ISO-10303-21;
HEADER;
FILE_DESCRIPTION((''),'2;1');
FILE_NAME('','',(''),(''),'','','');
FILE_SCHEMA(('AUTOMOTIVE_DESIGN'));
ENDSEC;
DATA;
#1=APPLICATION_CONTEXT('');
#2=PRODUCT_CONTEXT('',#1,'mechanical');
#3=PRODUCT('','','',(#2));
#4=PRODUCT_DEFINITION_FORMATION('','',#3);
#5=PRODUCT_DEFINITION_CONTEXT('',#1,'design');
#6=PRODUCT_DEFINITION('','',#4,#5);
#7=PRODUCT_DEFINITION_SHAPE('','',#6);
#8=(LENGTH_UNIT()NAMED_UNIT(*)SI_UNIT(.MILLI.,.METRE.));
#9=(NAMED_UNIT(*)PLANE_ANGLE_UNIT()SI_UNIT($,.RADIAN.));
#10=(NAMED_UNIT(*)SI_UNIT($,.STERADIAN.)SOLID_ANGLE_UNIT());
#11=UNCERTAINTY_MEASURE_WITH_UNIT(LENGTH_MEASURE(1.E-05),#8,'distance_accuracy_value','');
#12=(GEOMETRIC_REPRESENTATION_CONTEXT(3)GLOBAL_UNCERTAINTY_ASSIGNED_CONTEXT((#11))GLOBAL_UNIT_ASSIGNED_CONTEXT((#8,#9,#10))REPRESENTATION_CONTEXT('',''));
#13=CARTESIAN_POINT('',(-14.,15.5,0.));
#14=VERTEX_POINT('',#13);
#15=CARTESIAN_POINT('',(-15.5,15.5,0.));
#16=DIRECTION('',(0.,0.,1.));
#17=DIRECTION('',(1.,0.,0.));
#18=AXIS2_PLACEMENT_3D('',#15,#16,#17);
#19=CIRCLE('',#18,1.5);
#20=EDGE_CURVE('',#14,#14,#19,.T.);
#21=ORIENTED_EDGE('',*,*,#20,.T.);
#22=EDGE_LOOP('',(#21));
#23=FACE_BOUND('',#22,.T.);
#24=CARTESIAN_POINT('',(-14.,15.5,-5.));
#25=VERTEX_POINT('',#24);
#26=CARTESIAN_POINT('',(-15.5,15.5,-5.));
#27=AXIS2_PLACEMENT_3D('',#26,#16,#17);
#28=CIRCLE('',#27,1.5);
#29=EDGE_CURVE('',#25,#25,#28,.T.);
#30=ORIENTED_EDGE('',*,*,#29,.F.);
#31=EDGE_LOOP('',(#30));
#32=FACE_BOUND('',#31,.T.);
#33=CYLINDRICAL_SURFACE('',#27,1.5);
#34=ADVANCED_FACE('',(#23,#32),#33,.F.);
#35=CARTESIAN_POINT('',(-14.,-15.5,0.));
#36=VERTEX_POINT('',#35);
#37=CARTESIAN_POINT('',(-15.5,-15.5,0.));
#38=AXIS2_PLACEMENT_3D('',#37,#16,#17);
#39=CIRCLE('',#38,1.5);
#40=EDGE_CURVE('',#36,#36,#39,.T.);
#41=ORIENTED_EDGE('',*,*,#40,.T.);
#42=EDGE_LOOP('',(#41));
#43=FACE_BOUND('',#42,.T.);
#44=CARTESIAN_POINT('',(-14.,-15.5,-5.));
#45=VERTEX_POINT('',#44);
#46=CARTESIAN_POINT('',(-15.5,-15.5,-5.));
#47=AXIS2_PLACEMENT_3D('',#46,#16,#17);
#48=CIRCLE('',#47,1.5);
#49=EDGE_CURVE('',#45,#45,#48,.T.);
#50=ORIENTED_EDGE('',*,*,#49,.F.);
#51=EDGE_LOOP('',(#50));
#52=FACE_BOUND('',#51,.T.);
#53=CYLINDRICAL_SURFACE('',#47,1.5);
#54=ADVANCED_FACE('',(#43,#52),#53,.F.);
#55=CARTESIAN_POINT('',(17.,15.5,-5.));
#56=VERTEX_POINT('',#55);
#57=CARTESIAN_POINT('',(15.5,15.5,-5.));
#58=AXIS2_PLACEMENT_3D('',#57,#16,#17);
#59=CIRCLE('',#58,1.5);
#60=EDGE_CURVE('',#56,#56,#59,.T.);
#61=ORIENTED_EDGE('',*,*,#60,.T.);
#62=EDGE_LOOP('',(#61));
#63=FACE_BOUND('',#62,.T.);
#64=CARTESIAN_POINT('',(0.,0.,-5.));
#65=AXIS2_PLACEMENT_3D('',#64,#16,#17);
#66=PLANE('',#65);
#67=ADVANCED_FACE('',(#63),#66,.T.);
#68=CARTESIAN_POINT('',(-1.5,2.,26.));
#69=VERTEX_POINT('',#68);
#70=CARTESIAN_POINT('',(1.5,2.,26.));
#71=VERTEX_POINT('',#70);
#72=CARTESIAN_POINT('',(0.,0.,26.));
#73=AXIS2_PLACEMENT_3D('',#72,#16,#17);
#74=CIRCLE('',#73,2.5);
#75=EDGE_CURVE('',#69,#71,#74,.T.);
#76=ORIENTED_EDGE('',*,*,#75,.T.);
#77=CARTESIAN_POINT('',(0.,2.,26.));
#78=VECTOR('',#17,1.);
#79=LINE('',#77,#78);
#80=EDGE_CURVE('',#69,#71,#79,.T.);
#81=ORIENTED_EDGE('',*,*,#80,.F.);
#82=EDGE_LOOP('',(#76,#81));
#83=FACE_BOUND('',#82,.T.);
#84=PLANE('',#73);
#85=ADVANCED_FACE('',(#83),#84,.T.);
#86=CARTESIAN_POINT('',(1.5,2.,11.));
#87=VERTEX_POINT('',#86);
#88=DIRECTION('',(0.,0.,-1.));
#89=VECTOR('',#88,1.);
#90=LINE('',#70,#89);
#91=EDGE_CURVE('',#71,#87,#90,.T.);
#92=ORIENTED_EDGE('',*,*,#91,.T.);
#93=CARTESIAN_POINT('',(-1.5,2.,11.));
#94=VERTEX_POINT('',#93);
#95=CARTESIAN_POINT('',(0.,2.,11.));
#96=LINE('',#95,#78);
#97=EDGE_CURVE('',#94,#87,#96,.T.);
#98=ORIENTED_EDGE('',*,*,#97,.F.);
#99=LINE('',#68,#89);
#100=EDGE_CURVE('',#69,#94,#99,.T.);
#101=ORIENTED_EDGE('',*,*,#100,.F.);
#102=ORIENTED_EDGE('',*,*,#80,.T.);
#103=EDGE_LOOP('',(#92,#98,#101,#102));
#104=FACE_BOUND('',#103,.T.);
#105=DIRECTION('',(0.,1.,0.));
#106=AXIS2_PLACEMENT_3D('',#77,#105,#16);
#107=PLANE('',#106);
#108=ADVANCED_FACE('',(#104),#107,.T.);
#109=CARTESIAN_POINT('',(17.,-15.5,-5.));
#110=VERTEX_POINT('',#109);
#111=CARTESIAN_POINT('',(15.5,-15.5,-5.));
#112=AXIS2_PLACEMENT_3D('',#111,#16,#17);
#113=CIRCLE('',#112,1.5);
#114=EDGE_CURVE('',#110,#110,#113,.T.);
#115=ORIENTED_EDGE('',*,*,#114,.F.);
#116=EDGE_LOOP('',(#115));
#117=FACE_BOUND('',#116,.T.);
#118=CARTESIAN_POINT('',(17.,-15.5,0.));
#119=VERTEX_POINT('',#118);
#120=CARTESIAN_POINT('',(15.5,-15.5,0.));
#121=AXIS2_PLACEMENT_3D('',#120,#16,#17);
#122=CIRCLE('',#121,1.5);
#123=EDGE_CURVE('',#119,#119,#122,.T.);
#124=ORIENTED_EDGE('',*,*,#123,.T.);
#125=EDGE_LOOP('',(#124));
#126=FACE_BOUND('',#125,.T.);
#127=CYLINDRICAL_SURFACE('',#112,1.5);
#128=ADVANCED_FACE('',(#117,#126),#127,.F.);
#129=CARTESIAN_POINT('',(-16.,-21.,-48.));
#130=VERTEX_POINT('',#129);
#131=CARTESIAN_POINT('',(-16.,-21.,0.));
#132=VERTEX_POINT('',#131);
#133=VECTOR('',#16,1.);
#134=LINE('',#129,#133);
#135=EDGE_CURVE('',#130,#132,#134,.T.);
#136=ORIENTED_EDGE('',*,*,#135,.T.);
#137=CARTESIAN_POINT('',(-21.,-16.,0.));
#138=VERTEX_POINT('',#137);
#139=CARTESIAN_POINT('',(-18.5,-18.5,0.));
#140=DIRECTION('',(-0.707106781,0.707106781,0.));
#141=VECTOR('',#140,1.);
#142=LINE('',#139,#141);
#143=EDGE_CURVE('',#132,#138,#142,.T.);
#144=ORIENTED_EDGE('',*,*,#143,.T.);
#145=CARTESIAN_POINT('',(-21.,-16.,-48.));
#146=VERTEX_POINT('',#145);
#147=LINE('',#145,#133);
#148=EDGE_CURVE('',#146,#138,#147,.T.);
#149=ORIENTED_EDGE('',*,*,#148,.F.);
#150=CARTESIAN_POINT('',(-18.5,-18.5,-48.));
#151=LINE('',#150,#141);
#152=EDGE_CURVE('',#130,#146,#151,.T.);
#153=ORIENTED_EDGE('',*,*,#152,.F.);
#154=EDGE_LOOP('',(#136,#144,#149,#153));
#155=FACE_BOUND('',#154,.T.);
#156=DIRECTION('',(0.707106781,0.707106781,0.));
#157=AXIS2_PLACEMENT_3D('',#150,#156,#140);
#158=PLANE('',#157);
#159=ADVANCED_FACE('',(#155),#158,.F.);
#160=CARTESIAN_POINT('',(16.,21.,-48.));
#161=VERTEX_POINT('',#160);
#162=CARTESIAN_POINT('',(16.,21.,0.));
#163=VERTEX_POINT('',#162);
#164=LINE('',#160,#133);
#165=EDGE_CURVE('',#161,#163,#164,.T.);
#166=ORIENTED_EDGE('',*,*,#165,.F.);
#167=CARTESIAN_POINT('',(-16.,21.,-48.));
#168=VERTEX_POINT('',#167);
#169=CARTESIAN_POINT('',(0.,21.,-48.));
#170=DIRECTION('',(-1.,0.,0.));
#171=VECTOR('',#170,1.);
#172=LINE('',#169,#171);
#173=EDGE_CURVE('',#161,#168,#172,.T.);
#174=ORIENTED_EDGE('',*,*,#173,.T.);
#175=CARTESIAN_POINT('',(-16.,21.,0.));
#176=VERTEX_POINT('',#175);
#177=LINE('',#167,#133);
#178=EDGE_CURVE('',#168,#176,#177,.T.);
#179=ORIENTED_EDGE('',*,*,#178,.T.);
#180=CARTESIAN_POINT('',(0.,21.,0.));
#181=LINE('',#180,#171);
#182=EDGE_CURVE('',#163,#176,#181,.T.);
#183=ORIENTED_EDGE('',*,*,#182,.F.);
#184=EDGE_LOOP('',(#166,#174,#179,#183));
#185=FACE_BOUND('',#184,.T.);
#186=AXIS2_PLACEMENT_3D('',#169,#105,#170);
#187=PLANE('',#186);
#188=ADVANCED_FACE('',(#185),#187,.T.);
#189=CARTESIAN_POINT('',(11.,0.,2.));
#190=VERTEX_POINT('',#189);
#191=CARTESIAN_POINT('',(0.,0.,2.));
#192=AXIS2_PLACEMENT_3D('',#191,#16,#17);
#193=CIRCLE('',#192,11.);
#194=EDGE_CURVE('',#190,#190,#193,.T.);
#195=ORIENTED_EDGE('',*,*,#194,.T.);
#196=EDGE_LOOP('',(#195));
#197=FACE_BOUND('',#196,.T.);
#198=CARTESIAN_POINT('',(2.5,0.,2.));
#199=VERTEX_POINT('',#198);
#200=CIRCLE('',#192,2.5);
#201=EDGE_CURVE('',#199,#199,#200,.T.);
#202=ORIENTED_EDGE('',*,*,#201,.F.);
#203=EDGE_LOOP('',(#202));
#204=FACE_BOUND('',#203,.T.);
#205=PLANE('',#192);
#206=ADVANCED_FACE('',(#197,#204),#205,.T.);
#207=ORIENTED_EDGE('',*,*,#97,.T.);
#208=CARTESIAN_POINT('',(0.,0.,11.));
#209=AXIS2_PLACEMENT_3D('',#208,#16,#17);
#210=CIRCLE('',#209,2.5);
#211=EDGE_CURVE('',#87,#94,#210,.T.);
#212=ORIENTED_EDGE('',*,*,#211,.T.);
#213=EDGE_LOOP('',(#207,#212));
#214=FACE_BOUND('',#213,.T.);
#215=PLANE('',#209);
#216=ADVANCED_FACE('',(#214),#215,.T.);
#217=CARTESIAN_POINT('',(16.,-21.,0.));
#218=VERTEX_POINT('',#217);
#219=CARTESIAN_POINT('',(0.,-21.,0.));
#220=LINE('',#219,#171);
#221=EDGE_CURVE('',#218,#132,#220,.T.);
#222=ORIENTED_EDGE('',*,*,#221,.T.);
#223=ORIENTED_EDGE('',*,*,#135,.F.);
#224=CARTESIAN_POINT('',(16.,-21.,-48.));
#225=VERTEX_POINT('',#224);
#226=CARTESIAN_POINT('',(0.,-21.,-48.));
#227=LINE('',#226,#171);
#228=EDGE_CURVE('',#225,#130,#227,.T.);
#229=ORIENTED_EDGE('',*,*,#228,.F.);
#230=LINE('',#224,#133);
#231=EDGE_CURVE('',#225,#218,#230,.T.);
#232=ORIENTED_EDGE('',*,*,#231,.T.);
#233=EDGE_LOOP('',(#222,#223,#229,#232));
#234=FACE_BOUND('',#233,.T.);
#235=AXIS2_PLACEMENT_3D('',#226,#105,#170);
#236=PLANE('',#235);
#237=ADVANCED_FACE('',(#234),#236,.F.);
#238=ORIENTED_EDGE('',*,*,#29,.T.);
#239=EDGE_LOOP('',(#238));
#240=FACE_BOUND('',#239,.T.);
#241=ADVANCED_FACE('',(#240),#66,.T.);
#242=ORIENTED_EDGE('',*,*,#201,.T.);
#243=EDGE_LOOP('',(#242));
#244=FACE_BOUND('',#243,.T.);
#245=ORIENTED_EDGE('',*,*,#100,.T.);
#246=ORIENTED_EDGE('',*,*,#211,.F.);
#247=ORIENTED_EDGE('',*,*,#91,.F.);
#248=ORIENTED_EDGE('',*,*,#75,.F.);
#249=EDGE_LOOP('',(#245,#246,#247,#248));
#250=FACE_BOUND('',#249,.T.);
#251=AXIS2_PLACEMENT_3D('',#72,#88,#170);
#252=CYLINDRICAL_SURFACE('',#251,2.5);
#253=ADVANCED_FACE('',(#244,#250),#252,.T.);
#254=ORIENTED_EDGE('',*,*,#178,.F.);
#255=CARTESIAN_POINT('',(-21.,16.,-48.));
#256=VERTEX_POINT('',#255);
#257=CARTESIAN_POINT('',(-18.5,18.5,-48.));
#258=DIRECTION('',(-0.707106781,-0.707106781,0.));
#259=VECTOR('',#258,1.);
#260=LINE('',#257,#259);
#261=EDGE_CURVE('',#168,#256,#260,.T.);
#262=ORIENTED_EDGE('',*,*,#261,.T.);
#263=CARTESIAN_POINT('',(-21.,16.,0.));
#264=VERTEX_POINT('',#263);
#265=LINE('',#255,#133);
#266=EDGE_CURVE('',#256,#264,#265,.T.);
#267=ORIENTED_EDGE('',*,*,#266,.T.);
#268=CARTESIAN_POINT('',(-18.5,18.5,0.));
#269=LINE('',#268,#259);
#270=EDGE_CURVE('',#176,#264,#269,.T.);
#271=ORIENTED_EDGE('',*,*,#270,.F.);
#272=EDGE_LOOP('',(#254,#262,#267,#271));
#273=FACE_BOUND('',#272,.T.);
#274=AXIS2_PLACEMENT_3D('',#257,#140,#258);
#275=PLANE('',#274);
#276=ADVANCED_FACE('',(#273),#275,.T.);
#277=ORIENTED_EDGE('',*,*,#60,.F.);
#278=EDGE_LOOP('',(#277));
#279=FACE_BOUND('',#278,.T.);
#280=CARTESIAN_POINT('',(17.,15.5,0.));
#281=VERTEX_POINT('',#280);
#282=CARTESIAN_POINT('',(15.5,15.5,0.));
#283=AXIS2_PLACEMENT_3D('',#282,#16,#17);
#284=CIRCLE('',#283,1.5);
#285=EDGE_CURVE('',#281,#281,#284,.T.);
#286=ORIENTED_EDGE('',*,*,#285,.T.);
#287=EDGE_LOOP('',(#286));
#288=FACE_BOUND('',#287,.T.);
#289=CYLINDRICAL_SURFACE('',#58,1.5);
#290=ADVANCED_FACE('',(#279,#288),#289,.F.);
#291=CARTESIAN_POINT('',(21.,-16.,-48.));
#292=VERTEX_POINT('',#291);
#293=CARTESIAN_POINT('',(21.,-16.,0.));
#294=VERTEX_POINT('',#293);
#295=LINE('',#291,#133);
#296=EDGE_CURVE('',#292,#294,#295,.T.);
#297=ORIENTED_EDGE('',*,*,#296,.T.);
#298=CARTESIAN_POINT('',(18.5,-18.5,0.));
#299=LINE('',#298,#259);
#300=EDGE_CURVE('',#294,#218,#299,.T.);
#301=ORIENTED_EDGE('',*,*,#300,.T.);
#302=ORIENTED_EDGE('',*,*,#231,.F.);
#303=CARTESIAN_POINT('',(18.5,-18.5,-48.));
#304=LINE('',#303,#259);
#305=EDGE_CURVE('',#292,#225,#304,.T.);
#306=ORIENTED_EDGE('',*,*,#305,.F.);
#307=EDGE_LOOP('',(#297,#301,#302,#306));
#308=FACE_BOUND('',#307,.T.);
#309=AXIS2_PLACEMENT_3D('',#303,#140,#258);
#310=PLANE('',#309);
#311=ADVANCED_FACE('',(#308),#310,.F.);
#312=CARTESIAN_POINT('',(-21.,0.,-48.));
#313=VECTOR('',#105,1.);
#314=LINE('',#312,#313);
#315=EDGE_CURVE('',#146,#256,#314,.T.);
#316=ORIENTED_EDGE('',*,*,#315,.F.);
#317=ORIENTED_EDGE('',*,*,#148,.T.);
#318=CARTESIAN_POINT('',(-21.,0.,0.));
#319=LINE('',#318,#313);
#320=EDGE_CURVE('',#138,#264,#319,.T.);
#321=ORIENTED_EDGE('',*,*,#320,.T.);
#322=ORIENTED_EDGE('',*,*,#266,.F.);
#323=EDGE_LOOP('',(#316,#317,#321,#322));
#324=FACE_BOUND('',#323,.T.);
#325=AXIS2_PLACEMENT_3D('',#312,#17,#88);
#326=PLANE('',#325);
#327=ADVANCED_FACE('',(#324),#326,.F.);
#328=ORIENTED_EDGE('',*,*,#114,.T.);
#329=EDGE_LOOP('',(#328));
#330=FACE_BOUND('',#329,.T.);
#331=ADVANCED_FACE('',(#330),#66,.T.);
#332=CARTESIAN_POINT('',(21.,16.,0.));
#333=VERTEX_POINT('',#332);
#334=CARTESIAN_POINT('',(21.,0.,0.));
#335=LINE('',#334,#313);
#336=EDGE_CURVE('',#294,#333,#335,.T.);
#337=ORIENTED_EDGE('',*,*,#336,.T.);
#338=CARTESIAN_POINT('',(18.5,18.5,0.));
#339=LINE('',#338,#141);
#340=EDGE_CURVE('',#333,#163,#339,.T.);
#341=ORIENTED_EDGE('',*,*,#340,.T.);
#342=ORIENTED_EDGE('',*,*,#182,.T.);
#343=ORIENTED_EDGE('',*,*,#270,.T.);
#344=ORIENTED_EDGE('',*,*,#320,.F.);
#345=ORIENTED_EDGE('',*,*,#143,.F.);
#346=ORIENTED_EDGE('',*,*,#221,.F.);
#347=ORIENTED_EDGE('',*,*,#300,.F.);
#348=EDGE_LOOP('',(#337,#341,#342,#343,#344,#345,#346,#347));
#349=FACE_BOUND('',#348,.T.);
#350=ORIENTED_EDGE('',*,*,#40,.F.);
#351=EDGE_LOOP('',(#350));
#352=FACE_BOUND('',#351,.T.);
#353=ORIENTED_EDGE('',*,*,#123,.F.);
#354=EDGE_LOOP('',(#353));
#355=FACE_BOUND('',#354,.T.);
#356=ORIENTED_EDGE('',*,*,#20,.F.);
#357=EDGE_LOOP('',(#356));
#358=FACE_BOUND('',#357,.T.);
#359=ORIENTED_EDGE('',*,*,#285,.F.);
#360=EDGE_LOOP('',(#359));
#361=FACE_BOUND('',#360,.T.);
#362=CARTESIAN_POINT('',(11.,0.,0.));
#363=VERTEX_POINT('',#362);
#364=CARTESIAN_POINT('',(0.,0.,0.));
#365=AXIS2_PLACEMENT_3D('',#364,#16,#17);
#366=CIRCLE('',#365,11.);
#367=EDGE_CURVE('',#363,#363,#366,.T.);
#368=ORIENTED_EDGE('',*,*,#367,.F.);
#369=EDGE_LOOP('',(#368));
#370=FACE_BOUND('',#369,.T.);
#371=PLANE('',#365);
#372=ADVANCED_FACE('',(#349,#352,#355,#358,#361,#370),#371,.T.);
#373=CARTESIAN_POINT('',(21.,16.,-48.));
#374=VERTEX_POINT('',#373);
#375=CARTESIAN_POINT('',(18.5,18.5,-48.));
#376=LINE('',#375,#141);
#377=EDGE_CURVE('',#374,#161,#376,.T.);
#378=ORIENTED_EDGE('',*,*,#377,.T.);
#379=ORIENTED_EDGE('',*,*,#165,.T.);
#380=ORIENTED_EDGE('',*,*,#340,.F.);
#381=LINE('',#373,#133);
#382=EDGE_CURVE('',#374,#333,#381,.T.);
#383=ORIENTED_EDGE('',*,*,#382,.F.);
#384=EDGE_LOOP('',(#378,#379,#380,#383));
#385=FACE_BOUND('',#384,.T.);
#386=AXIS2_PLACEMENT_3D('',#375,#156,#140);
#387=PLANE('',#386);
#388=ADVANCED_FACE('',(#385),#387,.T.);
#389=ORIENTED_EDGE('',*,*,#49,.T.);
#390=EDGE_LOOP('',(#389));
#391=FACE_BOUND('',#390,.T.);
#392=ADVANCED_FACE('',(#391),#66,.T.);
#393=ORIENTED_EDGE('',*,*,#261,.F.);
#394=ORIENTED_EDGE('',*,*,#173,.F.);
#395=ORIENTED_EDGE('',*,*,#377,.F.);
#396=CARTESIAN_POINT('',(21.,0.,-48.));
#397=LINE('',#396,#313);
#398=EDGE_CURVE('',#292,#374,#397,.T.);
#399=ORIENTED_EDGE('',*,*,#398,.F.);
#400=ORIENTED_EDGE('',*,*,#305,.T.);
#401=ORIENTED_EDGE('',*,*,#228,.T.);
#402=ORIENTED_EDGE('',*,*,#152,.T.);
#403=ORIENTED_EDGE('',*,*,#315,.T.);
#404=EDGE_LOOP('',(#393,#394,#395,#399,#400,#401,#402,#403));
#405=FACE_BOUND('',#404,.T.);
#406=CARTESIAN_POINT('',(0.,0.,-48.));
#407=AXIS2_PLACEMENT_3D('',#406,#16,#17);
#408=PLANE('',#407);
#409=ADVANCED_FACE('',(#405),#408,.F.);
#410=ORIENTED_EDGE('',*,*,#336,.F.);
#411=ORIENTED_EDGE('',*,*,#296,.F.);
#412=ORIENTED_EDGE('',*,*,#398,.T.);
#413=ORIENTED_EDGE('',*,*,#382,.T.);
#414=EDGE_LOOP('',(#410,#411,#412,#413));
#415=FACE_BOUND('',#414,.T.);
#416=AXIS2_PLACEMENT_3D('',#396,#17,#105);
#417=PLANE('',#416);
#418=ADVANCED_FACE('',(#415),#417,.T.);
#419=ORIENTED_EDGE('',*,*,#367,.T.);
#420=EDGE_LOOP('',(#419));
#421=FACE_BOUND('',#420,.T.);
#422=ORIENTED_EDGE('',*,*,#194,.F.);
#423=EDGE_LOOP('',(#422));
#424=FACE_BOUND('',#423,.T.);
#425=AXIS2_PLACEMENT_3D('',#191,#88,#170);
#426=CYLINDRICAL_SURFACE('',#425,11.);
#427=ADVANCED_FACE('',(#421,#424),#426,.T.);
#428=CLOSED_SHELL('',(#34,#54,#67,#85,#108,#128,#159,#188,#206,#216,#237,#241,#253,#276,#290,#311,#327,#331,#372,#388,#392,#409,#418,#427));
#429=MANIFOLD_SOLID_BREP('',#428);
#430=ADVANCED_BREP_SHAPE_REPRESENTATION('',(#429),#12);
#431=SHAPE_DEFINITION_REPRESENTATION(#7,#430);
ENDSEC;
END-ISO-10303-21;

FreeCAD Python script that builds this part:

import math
import FreeCAD as App
import Part
import Sketcher

V = App.Vector
Q = App.Units.Quantity

doc = App.newDocument("Part")
params = doc.addObject("Spreadsheet::Sheet", "Params")
for row, (alias, value) in enumerate([
    ("sketch1_width", "32 mm"),
    ("pad1_length", "48 mm"),
    ("sketch2_diameter", "22 mm"),
    ("sketch2_diameter2", "5 mm"),
    ("pad2_length", "2 mm"),
    ("sketch3_radius", "2.5 mm"),
    ("sketch3_width", "3 mm"),
    ("pad3_length", "26 mm"),
    ("sketch4_radius", "2.5 mm"),
    ("pad4_length", "11 mm"),
    ("sketch5_diameter", "3 mm"),
    ("pocket1_length", "5 mm"),
], start=1):
    params.set(f"A{row}", alias)
    params.set(f"B{row}", "=" + value)
    params.setAlias(f"B{row}", alias)

body = doc.addObject("PartDesign::Body", "Body")

sketch1 = body.newObject("Sketcher::SketchObject", "Sketch")
sketch1.AttachmentSupport = (doc.getObject("XY_Plane"), [""])
sketch1.MapMode = "FlatFace"
sketch1.addGeometry([
    Part.LineSegment(V(-21, -16, 0), V(-16, -21, 0)),
    Part.LineSegment(V(-16, -21, 0), V(16, -21, 0)),
    Part.LineSegment(V(16, -21, 0), V(21, -16, 0)),
    Part.LineSegment(V(21, -16, 0), V(21, 16, 0)),
    Part.LineSegment(V(21, 16, 0), V(16, 21, 0)),
    Part.LineSegment(V(16, 21, 0), V(-16, 21, 0)),
    Part.LineSegment(V(-16, 21, 0), V(-21, 16, 0)),
    Part.LineSegment(V(-21, 16, 0), V(-21, -16, 0)),
], False)
sketch1.addConstraint([
    Sketcher.Constraint("Coincident", 0, 2, 1, 1),
    Sketcher.Constraint("Coincident", 1, 2, 2, 1),
    Sketcher.Constraint("Coincident", 2, 2, 3, 1),
    Sketcher.Constraint("Coincident", 3, 2, 4, 1),
    Sketcher.Constraint("Coincident", 4, 2, 5, 1),
    Sketcher.Constraint("Coincident", 5, 2, 6, 1),
    Sketcher.Constraint("Coincident", 6, 2, 7, 1),
    Sketcher.Constraint("Coincident", 7, 2, 0, 1),
    Sketcher.Constraint("Horizontal", 1),
    Sketcher.Constraint("Vertical", 3),
    Sketcher.Constraint("Horizontal", 5),
    Sketcher.Constraint("Vertical", 7),
    Sketcher.Constraint("Symmetric", 0, 2, 4, 2, -1, 1),
    Sketcher.Constraint("Symmetric", 2, 2, 6, 2, -1, 1),
    Sketcher.Constraint("Perpendicular", 0, 2),
    Sketcher.Constraint("Perpendicular", 2, 4),
    Sketcher.Constraint("Perpendicular", 4, 6),
    Sketcher.Constraint("Horizontal", 3, 2, 6, 2),
    Sketcher.Constraint("Vertical", 1, 2, 4, 2),
    Sketcher.Constraint("Equal", 5, 3),
    Sketcher.Constraint("DistanceX", 1, 1, 1, 2, Q("32 mm")),
    Sketcher.Constraint("DistanceY", 0, 2, -1, 1, Q("21 mm")),
])
sketch1.setExpression("Constraints[20]", "Params.sketch1_width")
pad1 = body.newObject("PartDesign::Pad", "Pad")
pad1.Profile = sketch1
pad1.setExpression("Length", "Params.pad1_length")
pad1.Reversed = True

sketch2 = body.newObject("Sketcher::SketchObject", "Sketch001")
sketch2.AttachmentSupport = (doc.getObject("XY_Plane"), [""])
sketch2.MapMode = "FlatFace"
sketch2.addGeometry([
    Part.Circle(V(0, 0, 0), V(0, 0, 1), 11),
    Part.Circle(V(0, 0, 0), V(0, 0, 1), 2.5),
], False)
sketch2.addConstraint([
    Sketcher.Constraint("Coincident", 0, 3, -1, 1),
    Sketcher.Constraint("Coincident", 1, 3, -1, 1),
    Sketcher.Constraint("Diameter", 0, Q("22 mm")),
    Sketcher.Constraint("Diameter", 1, Q("5 mm")),
])
sketch2.setExpression("Constraints[2]", "Params.sketch2_diameter")
sketch2.setExpression("Constraints[3]", "Params.sketch2_diameter2")
pad2 = body.newObject("PartDesign::Pad", "Pad001")
pad2.Profile = sketch2
pad2.setExpression("Length", "Params.pad2_length")

sketch3 = body.newObject("Sketcher::SketchObject", "Sketch002")
sketch3.AttachmentSupport = (doc.getObject("XY_Plane"), [""])
sketch3.MapMode = "FlatFace"
sketch3.addGeometry([
    Part.LineSegment(V(1.5, 2, 0), V(-1.5, 2, 0)),
    Part.ArcOfCircle(Part.Circle(V(0, 0, 0), V(0, 0, 1), 2.5), math.radians(126.869898), math.radians(360)),
    Part.ArcOfCircle(Part.Circle(V(0, 0, 0), V(0, 0, 1), 2.5), math.radians(0), math.radians(53.130102)),
], False)
sketch3.addConstraint([
    Sketcher.Constraint("Coincident", 0, 2, 1, 1),
    Sketcher.Constraint("Tangent", 1, 2, 2, 1),
    Sketcher.Constraint("Coincident", 2, 2, 0, 1),
    Sketcher.Constraint("Horizontal", 0),
    Sketcher.Constraint("Coincident", 1, 3, -1, 1),
    Sketcher.Constraint("Equal", 1, 2),
    Sketcher.Constraint("PointOnObject", 1, 2, -1),
    Sketcher.Constraint("Radius", 1, Q("2.5 mm")),
    Sketcher.Constraint("DistanceX", 0, 2, 0, 1, Q("3 mm")),
])
sketch3.setExpression("Constraints[7]", "Params.sketch3_radius")
sketch3.setExpression("Constraints[8]", "Params.sketch3_width")
pad3 = body.newObject("PartDesign::Pad", "Pad002")
pad3.Profile = sketch3
pad3.setExpression("Length", "Params.pad3_length")

sketch4 = body.newObject("Sketcher::SketchObject", "Sketch003")
sketch4.AttachmentSupport = (doc.getObject("XY_Plane"), [""])
sketch4.MapMode = "FlatFace"
sketch4.addGeometry([
    Part.ArcOfCircle(Part.Circle(V(0, 0, 0), V(0, 0, 1), 2.5), math.radians(53.130102), math.radians(126.869898)),
    Part.ArcOfCircle(Part.Circle(V(0, 0, 0), V(0, 0, 1), 2.5), math.radians(126.869898), math.radians(360)),
    Part.ArcOfCircle(Part.Circle(V(0, 0, 0), V(0, 0, 1), 2.5), math.radians(0), math.radians(53.130102)),
], False)
sketch4.addConstraint([
    Sketcher.Constraint("Tangent", 0, 2, 1, 1),
    Sketcher.Constraint("Tangent", 1, 2, 2, 1),
    Sketcher.Constraint("Tangent", 2, 2, 0, 1),
    Sketcher.Constraint("Coincident", 0, 3, -1, 1),
    Sketcher.Constraint("PointOnObject", 1, 2, -1),
    Sketcher.Constraint("Horizontal", 0, 2, 2, 2),
    Sketcher.Constraint("Radius", 0, Q("2.5 mm")),
    Sketcher.Constraint("DistanceY", -1, 1, 0, 2, Q("2 mm")),
])
sketch4.setExpression("Constraints[6]", "Params.sketch4_radius")
pad4 = body.newObject("PartDesign::Pad", "Pad003")
pad4.Profile = sketch4
pad4.setExpression("Length", "Params.pad4_length")

sketch5 = body.newObject("Sketcher::SketchObject", "Sketch004")
sketch5.AttachmentSupport = (doc.getObject("XY_Plane"), [""])
sketch5.MapMode = "FlatFace"
sketch5.addGeometry([
    Part.Circle(V(-15.5, 15.5, 0), V(0, 0, 1), 1.5),
    Part.Circle(V(15.5, 15.5, 0), V(0, 0, 1), 1.5),
    Part.Circle(V(15.5, -15.5, 0), V(0, 0, 1), 1.5),
    Part.Circle(V(-15.5, -15.5, 0), V(0, 0, 1), 1.5),
], False)
sketch5.addConstraint([
    Sketcher.Constraint("Equal", 0, 1),
    Sketcher.Constraint("Equal", 1, 2),
    Sketcher.Constraint("Equal", 2, 3),
    Sketcher.Constraint("Symmetric", 0, 3, 2, 3, -1, 1),
    Sketcher.Constraint("Symmetric", 1, 3, 3, 3, -1, 1),
    Sketcher.Constraint("Symmetric", 0, 3, 1, 3, -2),
    Sketcher.Constraint("Diameter", 0, Q("3 mm")),
    Sketcher.Constraint("DistanceX", 0, 3, 1, 3, Q("31 mm")),
    Sketcher.Constraint("DistanceY", 2, 3, 1, 3, Q("31 mm")),
])
sketch5.setExpression("Constraints[6]", "Params.sketch5_diameter")
pocket1 = body.newObject("PartDesign::Pocket", "Pocket")
pocket1.Profile = sketch5
pocket1.setExpression("Length", "Params.pocket1_length")

doc.recompute()
